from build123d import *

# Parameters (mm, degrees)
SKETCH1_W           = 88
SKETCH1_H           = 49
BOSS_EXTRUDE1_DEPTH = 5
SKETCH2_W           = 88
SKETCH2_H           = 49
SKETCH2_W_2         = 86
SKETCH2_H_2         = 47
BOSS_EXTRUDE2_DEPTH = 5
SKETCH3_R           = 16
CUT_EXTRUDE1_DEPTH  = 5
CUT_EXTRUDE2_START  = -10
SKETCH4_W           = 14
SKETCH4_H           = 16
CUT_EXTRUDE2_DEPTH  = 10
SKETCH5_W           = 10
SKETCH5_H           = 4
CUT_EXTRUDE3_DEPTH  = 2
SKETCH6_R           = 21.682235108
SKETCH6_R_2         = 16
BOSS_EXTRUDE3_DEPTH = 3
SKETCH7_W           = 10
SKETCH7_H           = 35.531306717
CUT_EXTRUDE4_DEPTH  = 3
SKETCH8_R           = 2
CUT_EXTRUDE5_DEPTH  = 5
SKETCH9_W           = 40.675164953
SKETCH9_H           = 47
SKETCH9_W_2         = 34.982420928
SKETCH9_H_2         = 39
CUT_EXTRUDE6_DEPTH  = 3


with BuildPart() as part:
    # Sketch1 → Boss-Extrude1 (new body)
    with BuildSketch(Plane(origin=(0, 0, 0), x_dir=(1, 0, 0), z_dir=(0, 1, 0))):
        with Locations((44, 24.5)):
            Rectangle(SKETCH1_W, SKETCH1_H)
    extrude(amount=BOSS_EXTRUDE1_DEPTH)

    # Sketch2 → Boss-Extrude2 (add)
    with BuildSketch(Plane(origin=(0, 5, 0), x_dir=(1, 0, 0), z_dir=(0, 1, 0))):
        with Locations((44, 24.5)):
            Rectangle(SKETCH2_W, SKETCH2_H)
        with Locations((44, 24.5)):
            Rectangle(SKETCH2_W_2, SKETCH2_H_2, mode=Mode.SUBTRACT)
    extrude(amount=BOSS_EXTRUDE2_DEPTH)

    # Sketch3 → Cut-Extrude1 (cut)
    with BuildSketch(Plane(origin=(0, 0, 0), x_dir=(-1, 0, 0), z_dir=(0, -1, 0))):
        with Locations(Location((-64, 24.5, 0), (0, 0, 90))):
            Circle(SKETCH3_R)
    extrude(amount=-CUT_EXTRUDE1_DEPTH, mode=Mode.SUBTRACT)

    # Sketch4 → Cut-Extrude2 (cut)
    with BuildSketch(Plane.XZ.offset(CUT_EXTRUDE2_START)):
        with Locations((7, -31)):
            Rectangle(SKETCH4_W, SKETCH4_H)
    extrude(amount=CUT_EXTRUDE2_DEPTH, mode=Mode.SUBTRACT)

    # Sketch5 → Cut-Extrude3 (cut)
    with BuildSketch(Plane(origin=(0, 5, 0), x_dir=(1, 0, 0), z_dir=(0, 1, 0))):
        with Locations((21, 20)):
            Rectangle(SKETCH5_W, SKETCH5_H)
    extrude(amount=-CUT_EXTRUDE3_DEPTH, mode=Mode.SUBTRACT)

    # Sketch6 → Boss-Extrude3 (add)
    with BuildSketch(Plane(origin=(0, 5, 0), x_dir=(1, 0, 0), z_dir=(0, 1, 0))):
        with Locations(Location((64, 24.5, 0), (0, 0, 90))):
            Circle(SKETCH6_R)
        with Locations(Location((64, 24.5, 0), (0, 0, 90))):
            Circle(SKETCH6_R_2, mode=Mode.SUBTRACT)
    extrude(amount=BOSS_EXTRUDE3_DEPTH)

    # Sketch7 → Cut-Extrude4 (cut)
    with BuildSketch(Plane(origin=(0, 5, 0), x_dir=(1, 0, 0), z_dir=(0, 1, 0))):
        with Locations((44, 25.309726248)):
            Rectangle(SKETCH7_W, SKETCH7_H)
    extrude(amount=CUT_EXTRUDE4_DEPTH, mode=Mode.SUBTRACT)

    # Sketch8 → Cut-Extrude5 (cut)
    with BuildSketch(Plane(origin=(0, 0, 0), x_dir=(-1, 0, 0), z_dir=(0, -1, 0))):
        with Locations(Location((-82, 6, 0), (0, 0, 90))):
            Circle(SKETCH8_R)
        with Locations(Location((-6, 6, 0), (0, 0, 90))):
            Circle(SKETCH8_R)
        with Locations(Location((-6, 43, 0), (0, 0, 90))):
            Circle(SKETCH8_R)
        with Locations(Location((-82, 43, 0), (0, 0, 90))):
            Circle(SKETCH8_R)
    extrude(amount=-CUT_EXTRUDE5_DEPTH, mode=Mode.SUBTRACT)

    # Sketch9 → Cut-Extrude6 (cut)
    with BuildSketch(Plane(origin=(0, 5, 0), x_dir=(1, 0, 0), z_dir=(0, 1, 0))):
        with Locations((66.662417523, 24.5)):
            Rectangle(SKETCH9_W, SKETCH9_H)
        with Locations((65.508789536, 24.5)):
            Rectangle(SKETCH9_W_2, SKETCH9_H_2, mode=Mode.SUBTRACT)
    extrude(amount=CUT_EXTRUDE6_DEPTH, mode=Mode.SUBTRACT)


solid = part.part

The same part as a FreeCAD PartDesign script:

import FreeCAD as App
import Part
import Sketcher

V = App.Vector
Q = App.Units.Quantity

doc = App.newDocument("Part")
body = doc.addObject("PartDesign::Body", "Body")

# Sketch on XZ plane
sketch1 = body.newObject("Sketcher::SketchObject", "Sketch")
sketch1.AttachmentSupport = (doc.getObject("XZ_Plane"), [""])
sketch1.MapMode = "FlatFace"
sketch1.addGeometry([
    Part.LineSegment(V(0, -49, 0), V(0, 0, 0)),
    Part.LineSegment(V(0, 0, 0), V(88, 0, 0)),
    Part.LineSegment(V(88, 0, 0), V(88, -49, 0)),
    Part.LineSegment(V(88, -49, 0), V(0, -49, 0)),
], False)
sketch1.addConstraint([
    Sketcher.Constraint("Coincident", 0, 2, 1, 1),
    Sketcher.Constraint("Coincident", 1, 2, 2, 1),
    Sketcher.Constraint("Coincident", 2, 2, 3, 1),
    Sketcher.Constraint("Coincident", 3, 2, 0, 1),
    Sketcher.Constraint("Vertical", 0),
    Sketcher.Constraint("Horizontal", 1),
    Sketcher.Constraint("Vertical", 2),
    Sketcher.Constraint("Horizontal", 3),
    Sketcher.Constraint("Coincident", 0, 2, -1, 1),
    Sketcher.Constraint("DistanceX", 1, 1, 1, 2, Q("88 mm")),
    Sketcher.Constraint("DistanceY", 0, 1, 0, 2, Q("49 mm")),
])
pad1 = body.newObject("PartDesign::Pad", "Pad")
pad1.Profile = sketch1
pad1.Length = 5
pad1.Reversed = True

# Sketch on XZ plane
sketch2 = body.newObject("Sketcher::SketchObject", "Sketch001")
sketch2.AttachmentSupport = (doc.getObject("XZ_Plane"), [""])
sketch2.MapMode = "FlatFace"
sketch2.AttachmentOffset = App.Placement(V(0, 0, -5), App.Rotation())
sketch2.addGeometry([
    Part.LineSegment(V(0, -49, 0), V(0, 0, 0)),  # 0
    Part.LineSegment(V(0, 0, 0), V(88, 0, 0)),  # 1
    Part.LineSegment(V(88, 0, 0), V(88, -49, 0)),  # 2
    Part.LineSegment(V(88, -49, 0), V(0, -49, 0)),  # 3
    Part.LineSegment(V(87, -1, 0), V(1, -1, 0)),  # 4
    Part.LineSegment(V(1, -1, 0), V(1, -48, 0)),  # 5
    Part.LineSegment(V(1, -48, 0), V(87, -48, 0)),  # 6
    Part.LineSegment(V(87, -48, 0), V(87, -1, 0)),  # 7
], False)
sketch2.addConstraint([
    Sketcher.Constraint("Coincident", 0, 2, 1, 1),
    Sketcher.Constraint("Coincident", 1, 2, 2, 1),
    Sketcher.Constraint("Coincident", 2, 2, 3, 1),
    Sketcher.Constraint("Coincident", 3, 2, 0, 1),
    Sketcher.Constraint("Coincident", 4, 2, 5, 1),
    Sketcher.Constraint("Coincident", 5, 2, 6, 1),
    Sketcher.Constraint("Coincident", 6, 2, 7, 1),
    Sketcher.Constraint("Coincident", 7, 2, 4, 1),
    Sketcher.Constraint("Vertical", 0),
    Sketcher.Constraint("Horizontal", 1),
    Sketcher.Constraint("Vertical", 2),
    Sketcher.Constraint("Horizontal", 3),
    Sketcher.Constraint("Horizontal", 4),
    Sketcher.Constraint("Vertical", 5),
    Sketcher.Constraint("Horizontal", 6),
    Sketcher.Constraint("Vertical", 7),
    Sketcher.Constraint("Coincident", 0, 2, -1, 1),
    Sketcher.Constraint("DistanceX", 1, 1, 1, 2, Q("88 mm")),
    Sketcher.Constraint("DistanceX", 4, 2, 4, 1, Q("86 mm")),
    Sketcher.Constraint("DistanceY", 0, 1, 0, 2, Q("49 mm")),
    Sketcher.Constraint("DistanceY", 5, 2, 5, 1, Q("47 mm")),
    Sketcher.Constraint("DistanceX", -1, 1, 4, 2, Q("1 mm")),
    Sketcher.Constraint("DistanceY", 4, 2, -1, 1, Q("1 mm")),
])
pad2 = body.newObject("PartDesign::Pad", "Pad001")
pad2.Profile = sketch2
pad2.Length = 5
pad2.Reversed = True

# Sketch on XZ plane
sketch3 = body.newObject("Sketcher::SketchObject", "Sketch002")
sketch3.AttachmentSupport = (doc.getObject("XZ_Plane"), [""])
sketch3.MapMode = "FlatFace"
sketch3.addGeometry(Part.Circle(V(64, -24.5, 0), V(0, 0, 1), 16), False)
sketch3.addConstraint([
    Sketcher.Constraint("Diameter", 0, Q("32 mm")),
    Sketcher.Constraint("DistanceX", -1, 1, 0, 3, Q("64 mm")),
    Sketcher.Constraint("DistanceY", 0, 3, -1, 1, Q("24.5 mm")),
])
pocket1 = body.newObject("PartDesign::Pocket", "Pocket")
pocket1.Profile = sketch3
pocket1.Length = 5

# Sketch on XZ plane
sketch4 = body.newObject("Sketcher::SketchObject", "Sketch003")
sketch4.AttachmentSupport = (doc.getObject("XZ_Plane"), [""])
sketch4.MapMode = "FlatFace"
sketch4.AttachmentOffset = App.Placement(V(0, 0, -10), App.Rotation())
sketch4.addGeometry([
    Part.LineSegment(V(0, -23, 0), V(0, -39, 0)),
    Part.LineSegment(V(0, -39, 0), V(14, -39, 0)),
    Part.LineSegment(V(14, -39, 0), V(14, -23, 0)),
    Part.LineSegment(V(14, -23, 0), V(0, -23, 0)),
], False)
sketch4.addConstraint([
    Sketcher.Constraint("Coincident", 0, 2, 1, 1),
    Sketcher.Constraint("Coincident", 1, 2, 2, 1),
    Sketcher.Constraint("Coincident", 2, 2, 3, 1),
    Sketcher.Constraint("Coincident", 3, 2, 0, 1),
    Sketcher.Constraint("Vertical", 0),
    Sketcher.Constraint("Horizontal", 1),
    Sketcher.Constraint("Vertical", 2),
    Sketcher.Constraint("Horizontal", 3),
    Sketcher.Constraint("PointOnObject", 0, 2, -2),
    Sketcher.Constraint("DistanceX", 1, 1, 1, 2, Q("14 mm")),
    Sketcher.Constraint("DistanceY", 0, 2, 0, 1, Q("16 mm")),
    Sketcher.Constraint("DistanceY", 0, 2, -1, 1, Q("39 mm")),
])
pocket2 = body.newObject("PartDesign::Pocket", "Pocket001")
pocket2.Profile = sketch4
pocket2.Length = 10
pocket2.Reversed = True

# Sketch on XZ plane
sketch5 = body.newObject("Sketcher::SketchObject", "Sketch004")
sketch5.AttachmentSupport = (doc.getObject("XZ_Plane"), [""])
sketch5.MapMode = "FlatFace"
sketch5.AttachmentOffset = App.Placement(V(0, 0, -5), App.Rotation())
sketch5.addGeometry([
    Part.LineSegment(V(16, -22, 0), V(16, -18, 0)),
    Part.LineSegment(V(16, -18, 0), V(26, -18, 0)),
    Part.LineSegment(V(26, -18, 0), V(26, -22, 0)),
    Part.LineSegment(V(26, -22, 0), V(16, -22, 0)),
], False)
sketch5.addConstraint([
    Sketcher.Constraint("Coincident", 0, 2, 1, 1),
    Sketcher.Constraint("Coincident", 1, 2, 2, 1),
    Sketcher.Constraint("Coincident", 2, 2, 3, 1),
    Sketcher.Constraint("Coincident", 3, 2, 0, 1),
    Sketcher.Constraint("Vertical", 0),
    Sketcher.Constraint("Horizontal", 1),
    Sketcher.Constraint("Vertical", 2),
    Sketcher.Constraint("Horizontal", 3),
    Sketcher.Constraint("DistanceX", 1, 1, 1, 2, Q("10 mm")),
    Sketcher.Constraint("DistanceY", 0, 1, 0, 2, Q("4 mm")),
    Sketcher.Constraint("DistanceX", -1, 1, 0, 2, Q("16 mm")),
    Sketcher.Constraint("DistanceY", 0, 2, -1, 1, Q("18 mm")),
])
pocket3 = body.newObject("PartDesign::Pocket", "Pocket002")
pocket3.Profile = sketch5
pocket3.Length = 2
pocket3.Reversed = True

# Sketch on XZ plane
sketch6 = body.newObject("Sketcher::SketchObject", "Sketch005")
sketch6.AttachmentSupport = (doc.getObject("XZ_Plane"), [""])
sketch6.MapMode = "FlatFace"
sketch6.AttachmentOffset = App.Placement(V(0, 0, -5), App.Rotation())
sketch6.addGeometry([
    Part.Circle(V(64, -24.5, 0), V(0, 0, 1), 21.682235),
    Part.Circle(V(64, -24.5, 0), V(0, 0, 1), 16),
], False)
sketch6.addConstraint([
    Sketcher.Constraint("Coincident", 1, 3, 0, 3),
    Sketcher.Constraint("Diameter", 1, Q("32 mm")),
    Sketcher.Constraint("DistanceX", -1, 1, 0, 3, Q("64 mm")),
    Sketcher.Constraint("DistanceY", 0, 3, -1, 1, Q("24.5 mm")),
    Sketcher.Constraint("Diameter", 0, Q("43.36447 mm")),
])
pad3 = body.newObject("PartDesign::Pad", "Pad002")
pad3.Profile = sketch6
pad3.Length = 3
pad3.Reversed = True

# Sketch on XZ plane
sketch7 = body.newObject("Sketcher::SketchObject", "Sketch006")
sketch7.AttachmentSupport = (doc.getObject("XZ_Plane"), [""])
sketch7.MapMode = "FlatFace"
sketch7.AttachmentOffset = App.Placement(V(0, 0, -5), App.Rotation())
sketch7.addGeometry([
    Part.LineSegment(V(39, -43.07538, 0), V(39, -7.544073, 0)),
    Part.LineSegment(V(39, -7.544073, 0), V(49, -7.544073, 0)),
    Part.LineSegment(V(49, -7.544073, 0), V(49, -43.07538, 0)),
    Part.LineSegment(V(49, -43.07538, 0), V(39, -43.07538, 0)),
], False)
sketch7.addConstraint([
    Sketcher.Constraint("Coincident", 0, 2, 1, 1),
    Sketcher.Constraint("Coincident", 1, 2, 2, 1),
    Sketcher.Constraint("Coincident", 2, 2, 3, 1),
    Sketcher.Constraint("Coincident", 3, 2, 0, 1),
    Sketcher.Constraint("Vertical", 0),
    Sketcher.Constraint("Horizontal", 1),
    Sketcher.Constraint("Vertical", 2),
    Sketcher.Constraint("Horizontal", 3),
    Sketcher.Constraint("DistanceX", 1, 1, 1, 2, Q("10 mm")),
    Sketcher.Constraint("DistanceX", -1, 1, 0, 2, Q("39 mm")),
    Sketcher.Constraint("DistanceY", 0, 1, 0, 2, Q("35.531307 mm")),
    Sketcher.Constraint("DistanceY", 2, 2, -1, 1, Q("43.07538 mm")),
])
pocket4 = body.newObject("PartDesign::Pocket", "Pocket003")
pocket4.Profile = sketch7
pocket4.Length = 3

# Sketch on XZ plane
sketch8 = body.newObject("Sketcher::SketchObject", "Sketch007")
sketch8.AttachmentSupport = (doc.getObject("XZ_Plane"), [""])
sketch8.MapMode = "FlatFace"
sketch8.addGeometry([
    Part.Circle(V(82, -6, 0), V(0, 0, 1), 2),
    Part.Circle(V(6, -6, 0), V(0, 0, 1), 2),
    Part.Circle(V(6, -43, 0), V(0, 0, 1), 2),
    Part.Circle(V(82, -43, 0), V(0, 0, 1), 2),
], False)
sketch8.addConstraint([
    Sketcher.Constraint("Equal", 0, 1),
    Sketcher.Constraint("Equal", 1, 2),
    Sketcher.Constraint("Equal", 2, 3),
    Sketcher.Constraint("Horizontal", 0, 3, 1, 3),
    Sketcher.Constraint("Horizontal", 2, 3, 3, 3),
    Sketcher.Constraint("Vertical", 1, 3, 2, 3),
    Sketcher.Constraint("Vertical", 0, 3, 3, 3),
    Sketcher.Constraint("Diameter", 0, Q("4 mm")),
    Sketcher.Constraint("DistanceX", -1, 1, 0, 3, Q("82 mm")),
    Sketcher.Constraint("DistanceY", 0, 3, -1, 1, Q("6 mm")),
    Sketcher.Constraint("DistanceX", -1, 1, 1, 3, Q("6 mm")),
    Sketcher.Constraint("DistanceY", 2, 3, -1, 1, Q("43 mm")),
])
pocket5 = body.newObject("PartDesign::Pocket", "Pocket004")
pocket5.Profile = sketch8
pocket5.Length = 5

# Sketch on XZ plane
sketch9 = body.newObject("Sketcher::SketchObject", "Sketch008")
sketch9.AttachmentSupport = (doc.getObject("XZ_Plane"), [""])
sketch9.MapMode = "FlatFace"
sketch9.AttachmentOffset = App.Placement(V(0, 0, -5), App.Rotation())
sketch9.addGeometry([
    Part.LineSegment(V(46.324835, -48, 0), V(46.324835, -1, 0)),  # 0
    Part.LineSegment(V(46.324835, -1, 0), V(87, -1, 0)),  # 1
    Part.LineSegment(V(87, -1, 0), V(87, -48, 0)),  # 2
    Part.LineSegment(V(87, -48, 0), V(46.324835, -48, 0)),  # 3
    Part.LineSegment(V(83, -5, 0), V(48.017579, -5, 0)),  # 4
    Part.LineSegment(V(48.017579, -5, 0), V(48.017579, -44, 0)),  # 5
    Part.LineSegment(V(48.017579, -44, 0), V(83, -44, 0)),  # 6
    Part.LineSegment(V(83, -44, 0), V(83, -5, 0)),  # 7
], False)
sketch9.addConstraint([
    Sketcher.Constraint("Coincident", 0, 2, 1, 1),
    Sketcher.Constraint("Coincident", 1, 2, 2, 1),
    Sketcher.Constraint("Coincident", 2, 2, 3, 1),
    Sketcher.Constraint("Coincident", 3, 2, 0, 1),
    Sketcher.Constraint("Coincident", 4, 2, 5, 1),
    Sketcher.Constraint("Coincident", 5, 2, 6, 1),
    Sketcher.Constraint("Coincident", 6, 2, 7, 1),
    Sketcher.Constraint("Coincident", 7, 2, 4, 1),
    Sketcher.Constraint("Vertical", 0),
    Sketcher.Constraint("Horizontal", 1),
    Sketcher.Constraint("Vertical", 2),
    Sketcher.Constraint("Horizontal", 3),
    Sketcher.Constraint("Horizontal", 4),
    Sketcher.Constraint("Vertical", 5),
    Sketcher.Constraint("Horizontal", 6),
    Sketcher.Constraint("Vertical", 7),
    Sketcher.Constraint("DistanceY", 0, 1, 0, 2, Q("47 mm")),
    Sketcher.Constraint("DistanceY", 5, 2, 5, 1, Q("39 mm")),
    Sketcher.Constraint("DistanceY", 0, 2, -1, 1, Q("1 mm")),
    Sketcher.Constraint("DistanceX", -1, 1, 1, 2, Q("87 mm")),
    Sketcher.Constraint("DistanceY", 4, 2, -1, 1, Q("5 mm")),
    Sketcher.Constraint("DistanceX", -1, 1, 6, 2, Q("83 mm")),
    Sketcher.Constraint("DistanceX", 4, 2, 4, 1, Q("34.982421 mm")),
    Sketcher.Constraint("DistanceX", 1, 1, 1, 2, Q("40.675165 mm")),
])
pocket6 = body.newObject("PartDesign::Pocket", "Pocket005")
pocket6.Profile = sketch9
pocket6.Length = 3

doc.recompute()
